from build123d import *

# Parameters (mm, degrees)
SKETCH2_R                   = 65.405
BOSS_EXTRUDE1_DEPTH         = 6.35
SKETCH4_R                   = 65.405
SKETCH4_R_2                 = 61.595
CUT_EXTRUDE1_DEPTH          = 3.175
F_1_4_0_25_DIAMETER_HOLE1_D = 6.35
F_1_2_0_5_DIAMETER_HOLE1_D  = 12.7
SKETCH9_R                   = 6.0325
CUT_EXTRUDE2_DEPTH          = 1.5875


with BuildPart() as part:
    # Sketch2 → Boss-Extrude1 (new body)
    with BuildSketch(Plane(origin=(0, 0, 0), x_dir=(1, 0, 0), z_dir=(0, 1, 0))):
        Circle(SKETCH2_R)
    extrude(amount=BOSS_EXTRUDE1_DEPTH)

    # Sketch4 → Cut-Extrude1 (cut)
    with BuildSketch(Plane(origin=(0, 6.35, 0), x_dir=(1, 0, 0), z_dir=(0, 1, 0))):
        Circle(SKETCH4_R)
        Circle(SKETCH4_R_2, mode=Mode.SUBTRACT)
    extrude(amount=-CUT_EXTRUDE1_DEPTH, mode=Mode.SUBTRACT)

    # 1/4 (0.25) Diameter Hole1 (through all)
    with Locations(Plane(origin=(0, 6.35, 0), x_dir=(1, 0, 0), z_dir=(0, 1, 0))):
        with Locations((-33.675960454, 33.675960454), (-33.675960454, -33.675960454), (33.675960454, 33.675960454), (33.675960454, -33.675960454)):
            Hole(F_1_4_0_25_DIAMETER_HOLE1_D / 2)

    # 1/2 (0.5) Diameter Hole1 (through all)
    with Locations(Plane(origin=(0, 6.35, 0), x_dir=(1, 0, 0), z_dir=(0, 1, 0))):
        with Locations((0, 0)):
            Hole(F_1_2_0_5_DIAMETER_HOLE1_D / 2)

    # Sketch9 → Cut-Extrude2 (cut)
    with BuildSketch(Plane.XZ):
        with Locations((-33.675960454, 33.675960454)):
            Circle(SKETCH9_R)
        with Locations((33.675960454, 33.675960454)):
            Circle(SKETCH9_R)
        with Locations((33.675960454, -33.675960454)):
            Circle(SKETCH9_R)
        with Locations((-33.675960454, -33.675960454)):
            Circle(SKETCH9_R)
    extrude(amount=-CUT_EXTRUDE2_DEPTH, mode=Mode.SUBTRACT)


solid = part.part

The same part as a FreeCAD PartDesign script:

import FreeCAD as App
import Part
import Sketcher

V = App.Vector
Q = App.Units.Quantity

doc = App.newDocument("Part")
body = doc.addObject("PartDesign::Body", "Body")

# Sketch on XZ plane
sketch1 = doc.addObject("Sketcher::SketchObject", "Sketch")
body.addObject(sketch1)
sketch1.AttachmentSupport = (doc.XZ_Plane, [""])
sketch1.MapMode = "FlatFace"
sketch1.addGeometry(Part.Circle(V(0, 0, 0), V(0, 0, 1), 65), False)
sketch1.addConstraint([
    Sketcher.Constraint("Coincident", 0, 3, -1, 1),
    Sketcher.Constraint("Diameter", 0, Q("5.15 in")),
])
pad1 = doc.addObject("PartDesign::Pad", "Pad")
body.addObject(pad1)
pad1.Profile = sketch1
pad1.Length = Q("0.25 in")
pad1.Reversed = True

# Sketch on XZ plane
sketch2 = doc.addObject("Sketcher::SketchObject", "Sketch001")
body.addObject(sketch2)
sketch2.AttachmentSupport = (doc.XZ_Plane, [""])
sketch2.MapMode = "FlatFace"
sketch2.AttachmentOffset = App.Placement(V(0, 0, -0.25 * 25.4), App.Rotation())
sketch2.addGeometry([
    Part.Circle(V(0, 0, 0), V(0, 0, 1), 65),
    Part.Circle(V(0, 0, 0), V(0, 0, 1), 62),
], False)
sketch2.addConstraint([
    Sketcher.Constraint("Coincident", 0, 3, -1, 1),
    Sketcher.Constraint("Coincident", 1, 3, -1, 1),
    Sketcher.Constraint("Diameter", 0, Q("5.15 in")),
    Sketcher.Constraint("Diameter", 1, Q("4.85 in")),
])
pocket1 = doc.addObject("PartDesign::Pocket", "Pocket")
body.addObject(pocket1)
pocket1.Profile = sketch2
pocket1.Length = Q("0.125 in")
pocket1.Reversed = True

# Sketch on XZ plane
sketch3 = doc.addObject("Sketcher::SketchObject", "Sketch002")
body.addObject(sketch3)
sketch3.AttachmentSupport = (doc.XZ_Plane, [""])
sketch3.MapMode = "FlatFace"
sketch3.AttachmentOffset = App.Placement(V(0, 0, -0.25 * 25.4), App.Rotation())
sketch3.addGeometry([
    Part.Circle(V(-33.7, -33.7, 0), V(0, 0, 1), 3.2),
    Part.Circle(V(-33.7, 33.7, 0), V(0, 0, 1), 3.2),
    Part.Circle(V(33.7, -33.7, 0), V(0, 0, 1), 3.2),
    Part.Circle(V(33.7, 33.7, 0), V(0, 0, 1), 3.2),
], False)
sketch3.addConstraint([
    Sketcher.Constraint("Equal", 0, 1),
    Sketcher.Constraint("Equal", 1, 2),
    Sketcher.Constraint("Equal", 2, 3),
    Sketcher.Constraint("Symmetric", 1, 3, 2, 3, -1, 1),
    Sketcher.Constraint("Symmetric", 0, 3, 3, 3, -1, 1),
    Sketcher.Constraint("Symmetric", 0, 3, 2, 3, -2),
    Sketcher.Constraint("Diameter", 0, Q("0.25 in")),
    Sketcher.Constraint("DistanceX", 0, 3, -1, 1, 33.67596),
    Sketcher.Constraint("DistanceY", 0, 3, -1, 1, 33.67596),
])
doc.recompute()
hole = doc.addObject("PartDesign::Hole", "Hole")
body.addObject(hole)
hole.Profile = sketch3
hole.ThreadType = "None"
hole.Diameter = Q("0.25 in")
hole.DepthType = "ThroughAll"
hole.Reversed = True

# Sketch on XZ plane
sketch4 = doc.addObject("Sketcher::SketchObject", "Sketch003")
body.addObject(sketch4)
sketch4.AttachmentSupport = (doc.XZ_Plane, [""])
sketch4.MapMode = "FlatFace"
sketch4.AttachmentOffset = App.Placement(V(0, 0, -0.25 * 25.4), App.Rotation())
sketch4.addGeometry(Part.Circle(V(0, 0, 0), V(0, 0, 1), 6), False)
sketch4.addConstraint([
    Sketcher.Constraint("Coincident", 0, 3, -1, 1),
    Sketcher.Constraint("Diameter", 0, Q("0.5 in")),
])
doc.recompute()
hole2 = doc.addObject("PartDesign::Hole", "Hole001")
body.addObject(hole2)
hole2.Profile = sketch4
hole2.ThreadType = "None"
hole2.Diameter = Q("0.5 in")
hole2.DepthType = "ThroughAll"
hole2.Reversed = True

# Sketch on XZ plane
sketch5 = doc.addObject("Sketcher::SketchObject", "Sketch004")
body.addObject(sketch5)
sketch5.AttachmentSupport = (doc.XZ_Plane, [""])
sketch5.MapMode = "FlatFace"
sketch5.addGeometry([
    Part.Circle(V(-34, 34, 0), V(0, 0, 1), 6),
    Part.Circle(V(34, 34, 0), V(0, 0, 1), 6),
    Part.Circle(V(34, -34, 0), V(0, 0, 1), 6),
    Part.Circle(V(-34, -34, 0), V(0, 0, 1), 6),
], False)
sketch5.addConstraint([
    Sketcher.Constraint("Equal", 0, 1),
    Sketcher.Constraint("Equal", 1, 2),
    Sketcher.Constraint("Equal", 2, 3),
    Sketcher.Constraint("Symmetric", 0, 3, 2, 3, -1, 1),
    Sketcher.Constraint("Symmetric", 1, 3, 3, 3, -1, 1),
    Sketcher.Constraint("Symmetric", 0, 3, 1, 3, -2),
    Sketcher.Constraint("Diameter", 0, Q("0.475 in")),
    Sketcher.Constraint("DistanceX", 0, 3, -1, 1, 33.67596),
    Sketcher.Constraint("DistanceY", -1, 1, 0, 3, 33.67596),
])
pocket2 = doc.addObject("PartDesign::Pocket", "Pocket001")
body.addObject(pocket2)
pocket2.Profile = sketch5
pocket2.Length = Q("0.0625 in")

doc.recompute()
